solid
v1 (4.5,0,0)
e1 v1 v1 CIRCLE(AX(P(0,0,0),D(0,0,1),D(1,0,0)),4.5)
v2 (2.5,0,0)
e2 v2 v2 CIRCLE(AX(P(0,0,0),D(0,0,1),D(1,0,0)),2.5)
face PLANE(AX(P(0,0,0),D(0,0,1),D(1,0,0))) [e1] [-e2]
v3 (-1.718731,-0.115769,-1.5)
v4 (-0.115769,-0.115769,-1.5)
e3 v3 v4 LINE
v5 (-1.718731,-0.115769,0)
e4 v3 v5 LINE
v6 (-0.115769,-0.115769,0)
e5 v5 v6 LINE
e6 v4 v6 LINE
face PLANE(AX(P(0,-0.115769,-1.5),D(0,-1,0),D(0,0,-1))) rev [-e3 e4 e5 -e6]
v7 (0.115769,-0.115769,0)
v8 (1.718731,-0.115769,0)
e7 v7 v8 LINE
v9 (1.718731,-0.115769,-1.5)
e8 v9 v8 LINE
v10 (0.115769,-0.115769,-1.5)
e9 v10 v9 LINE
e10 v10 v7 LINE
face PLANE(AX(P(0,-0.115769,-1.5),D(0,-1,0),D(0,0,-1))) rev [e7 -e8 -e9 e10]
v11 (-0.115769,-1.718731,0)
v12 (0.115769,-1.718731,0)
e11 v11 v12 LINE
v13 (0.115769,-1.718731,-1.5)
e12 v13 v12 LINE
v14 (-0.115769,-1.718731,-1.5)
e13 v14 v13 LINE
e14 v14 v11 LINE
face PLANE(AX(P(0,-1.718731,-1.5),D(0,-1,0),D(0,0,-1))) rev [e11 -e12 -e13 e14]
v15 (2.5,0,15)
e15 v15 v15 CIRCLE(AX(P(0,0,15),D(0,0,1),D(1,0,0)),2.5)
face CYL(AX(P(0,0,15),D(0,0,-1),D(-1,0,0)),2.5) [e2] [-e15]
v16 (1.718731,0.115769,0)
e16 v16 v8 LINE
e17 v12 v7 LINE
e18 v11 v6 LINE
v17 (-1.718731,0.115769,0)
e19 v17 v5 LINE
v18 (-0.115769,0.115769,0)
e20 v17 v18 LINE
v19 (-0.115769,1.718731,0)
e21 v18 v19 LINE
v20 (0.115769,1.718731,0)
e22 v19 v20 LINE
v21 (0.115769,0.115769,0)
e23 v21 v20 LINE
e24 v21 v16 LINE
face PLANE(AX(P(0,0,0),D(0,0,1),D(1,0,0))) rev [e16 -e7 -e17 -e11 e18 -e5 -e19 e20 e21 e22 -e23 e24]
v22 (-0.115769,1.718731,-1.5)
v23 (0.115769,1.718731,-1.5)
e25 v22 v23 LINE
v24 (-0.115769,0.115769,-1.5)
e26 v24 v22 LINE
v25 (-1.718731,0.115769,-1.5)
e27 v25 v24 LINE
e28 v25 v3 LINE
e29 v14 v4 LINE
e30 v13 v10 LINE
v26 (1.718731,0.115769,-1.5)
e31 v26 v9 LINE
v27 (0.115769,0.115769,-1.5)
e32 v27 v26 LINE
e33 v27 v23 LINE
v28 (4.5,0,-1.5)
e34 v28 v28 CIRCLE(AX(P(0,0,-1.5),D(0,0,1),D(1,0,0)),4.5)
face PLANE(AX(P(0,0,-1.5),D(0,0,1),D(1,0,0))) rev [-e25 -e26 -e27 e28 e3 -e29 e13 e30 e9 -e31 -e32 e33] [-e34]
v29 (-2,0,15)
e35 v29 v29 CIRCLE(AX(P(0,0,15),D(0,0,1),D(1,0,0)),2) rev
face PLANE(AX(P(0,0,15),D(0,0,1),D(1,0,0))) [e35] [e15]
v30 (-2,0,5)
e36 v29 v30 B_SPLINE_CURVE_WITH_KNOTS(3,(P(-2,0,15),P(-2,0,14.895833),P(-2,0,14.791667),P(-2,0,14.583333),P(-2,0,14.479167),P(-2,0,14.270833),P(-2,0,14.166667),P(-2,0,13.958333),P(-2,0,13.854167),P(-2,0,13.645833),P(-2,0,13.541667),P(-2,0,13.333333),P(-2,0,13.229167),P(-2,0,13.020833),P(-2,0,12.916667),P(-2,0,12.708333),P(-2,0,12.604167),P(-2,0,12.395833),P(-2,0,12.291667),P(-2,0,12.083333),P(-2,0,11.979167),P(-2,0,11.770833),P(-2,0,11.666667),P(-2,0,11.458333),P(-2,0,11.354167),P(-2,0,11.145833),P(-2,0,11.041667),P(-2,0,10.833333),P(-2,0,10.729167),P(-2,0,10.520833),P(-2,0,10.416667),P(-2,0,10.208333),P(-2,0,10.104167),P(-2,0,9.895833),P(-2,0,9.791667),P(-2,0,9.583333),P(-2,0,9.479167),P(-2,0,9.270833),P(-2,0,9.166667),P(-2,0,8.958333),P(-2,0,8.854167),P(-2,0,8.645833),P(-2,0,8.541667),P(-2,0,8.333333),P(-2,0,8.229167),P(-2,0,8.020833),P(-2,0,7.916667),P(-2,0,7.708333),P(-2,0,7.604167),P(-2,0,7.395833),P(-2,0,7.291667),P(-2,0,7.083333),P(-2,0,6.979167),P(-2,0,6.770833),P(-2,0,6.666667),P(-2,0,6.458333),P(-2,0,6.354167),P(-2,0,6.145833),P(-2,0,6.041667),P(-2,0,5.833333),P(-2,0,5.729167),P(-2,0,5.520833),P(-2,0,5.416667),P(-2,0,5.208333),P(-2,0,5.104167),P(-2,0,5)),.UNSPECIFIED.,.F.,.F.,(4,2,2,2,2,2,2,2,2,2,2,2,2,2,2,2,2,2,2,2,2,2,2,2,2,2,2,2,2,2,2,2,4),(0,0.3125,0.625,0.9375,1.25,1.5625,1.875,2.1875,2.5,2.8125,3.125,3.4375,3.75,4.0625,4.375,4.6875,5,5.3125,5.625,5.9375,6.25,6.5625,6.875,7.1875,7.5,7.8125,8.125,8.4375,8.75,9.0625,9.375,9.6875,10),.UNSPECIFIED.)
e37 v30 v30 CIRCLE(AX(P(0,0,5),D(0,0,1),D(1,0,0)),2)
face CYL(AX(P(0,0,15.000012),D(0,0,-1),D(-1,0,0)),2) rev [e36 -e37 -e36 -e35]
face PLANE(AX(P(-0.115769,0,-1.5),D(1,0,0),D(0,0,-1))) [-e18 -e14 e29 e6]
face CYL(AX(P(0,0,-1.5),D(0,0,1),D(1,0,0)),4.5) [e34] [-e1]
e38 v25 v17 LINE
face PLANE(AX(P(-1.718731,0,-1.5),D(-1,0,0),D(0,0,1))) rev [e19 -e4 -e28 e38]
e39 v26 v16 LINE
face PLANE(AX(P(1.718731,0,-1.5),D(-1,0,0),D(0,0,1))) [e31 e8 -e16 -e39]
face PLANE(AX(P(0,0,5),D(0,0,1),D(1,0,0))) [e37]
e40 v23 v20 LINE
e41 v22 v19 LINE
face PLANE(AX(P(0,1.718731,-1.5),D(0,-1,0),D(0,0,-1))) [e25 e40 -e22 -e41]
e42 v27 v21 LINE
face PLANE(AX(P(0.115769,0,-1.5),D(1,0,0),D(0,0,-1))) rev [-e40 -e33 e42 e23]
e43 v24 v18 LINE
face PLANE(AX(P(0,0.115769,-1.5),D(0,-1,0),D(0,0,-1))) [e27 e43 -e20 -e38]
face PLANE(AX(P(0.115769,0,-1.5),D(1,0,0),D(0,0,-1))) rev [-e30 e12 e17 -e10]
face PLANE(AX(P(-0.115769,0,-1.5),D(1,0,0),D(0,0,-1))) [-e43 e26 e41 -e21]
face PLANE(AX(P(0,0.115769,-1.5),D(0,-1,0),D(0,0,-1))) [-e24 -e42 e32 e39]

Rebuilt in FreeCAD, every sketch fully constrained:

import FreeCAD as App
import Part
import Sketcher

V = App.Vector
Q = App.Units.Quantity


def add_polygon(sketch, points):
    """Adds a closed chain of lines whose ends are joined by coincident constraints."""
    first, n = sketch.GeometryCount, len(points)
    for a, b in zip(points, points[1:] + points[:1]):
        sketch.addGeometry(Part.LineSegment(App.Vector(*a, 0), App.Vector(*b, 0)), False)
    for i in range(n):
        sketch.addConstraint(Sketcher.Constraint("Coincident", first + i, 2, first + (i + 1) % n, 1))

doc = App.newDocument("Part")
body = doc.addObject("PartDesign::Body", "Body")

# Sketch on XY plane
sketch1 = body.newObject("Sketcher::SketchObject", "Sketch")
sketch1.AttachmentSupport = (doc.getObject("XY_Plane"), [""])
sketch1.MapMode = "FlatFace"
sketch1.addGeometry(Part.Circle(V(0, 0, 0), V(0, 0, 1), 2.5), False)
sketch1.addConstraint([
    Sketcher.Constraint("Coincident", 0, 3, -1, 1),
    Sketcher.Constraint("Diameter", 0, Q("5 mm")),
])
pad1 = body.newObject("PartDesign::Pad", "Pad")
pad1.Profile = sketch1
pad1.Length = 15

# Sketch on XY plane
sketch2 = body.newObject("Sketcher::SketchObject", "Sketch001")
sketch2.AttachmentSupport = (doc.getObject("XY_Plane"), [""])
sketch2.MapMode = "FlatFace"
sketch2.addGeometry(Part.Circle(V(0, 0, 0), V(0, 0, 1), 4.5), False)  # 0
add_polygon(sketch2, [(-0.12, -0.12), (-1.72, -0.12), (-1.72, 0.12), (-0.12, 0.12), (-0.12, 1.72), (0.12, 1.72), (0.12, 0.12), (1.72, 0.12), (1.72, -0.12), (0.12, -0.12), (0.12, -1.72), (-0.12, -1.72)])  # lines 1-12
sketch2.addConstraint([
    Sketcher.Constraint("Horizontal", 1),
    Sketcher.Constraint("Vertical", 2),
    Sketcher.Constraint("Horizontal", 3),
    Sketcher.Constraint("Vertical", 4),
    Sketcher.Constraint("Horizontal", 5),
    Sketcher.Constraint("Vertical", 6),
    Sketcher.Constraint("Horizontal", 7),
    Sketcher.Constraint("Vertical", 8),
    Sketcher.Constraint("Horizontal", 9),
    Sketcher.Constraint("Vertical", 10),
    Sketcher.Constraint("Horizontal", 11),
    Sketcher.Constraint("Vertical", 12),
    Sketcher.Constraint("Coincident", 0, 3, -1, 1),
    Sketcher.Constraint("Symmetric", 1, 2, 7, 2, -1, 1),
    Sketcher.Constraint("Symmetric", 3, 2, 9, 2, -1, 1),
    Sketcher.Constraint("Symmetric", 5, 2, 11, 2, -1, 1),
    Sketcher.Constraint("Symmetric", 3, 2, 6, 2, -2),
    Sketcher.Constraint("Equal", 11, 2),
    Sketcher.Constraint("Equal", 9, 4),
    Sketcher.Constraint("Diameter", 0, Q("9 mm")),
    Sketcher.Constraint("DistanceX", 1, 2, 1, 1, Q("1.602962 mm")),
    Sketcher.Constraint("DistanceX", 5, 1, 5, 2, Q("0.231539 mm")),
])
pad2 = body.newObject("PartDesign::Pad", "Pad001")
pad2.Profile = sketch2
pad2.Length = 1.5
pad2.Reversed = True

# Sketch on XY plane
sketch3 = body.newObject("Sketcher::SketchObject", "Sketch002")
sketch3.AttachmentSupport = (doc.getObject("XY_Plane"), [""])
sketch3.MapMode = "FlatFace"
sketch3.AttachmentOffset = App.Placement(V(0, 0, 15), App.Rotation())
sketch3.addGeometry(Part.Circle(V(0, 0, 0), V(0, 0, 1), 2), False)
sketch3.addConstraint([
    Sketcher.Constraint("Coincident", 0, 3, -1, 1),
    Sketcher.Constraint("Diameter", 0, Q("4 mm")),
])
pocket1 = body.newObject("PartDesign::Pocket", "Pocket")
pocket1.Profile = sketch3
pocket1.Type = "TwoLengths"
pocket1.Length = 18.684739
pocket1.Length2 = 10
pocket1.Reversed = True

doc.recompute()
